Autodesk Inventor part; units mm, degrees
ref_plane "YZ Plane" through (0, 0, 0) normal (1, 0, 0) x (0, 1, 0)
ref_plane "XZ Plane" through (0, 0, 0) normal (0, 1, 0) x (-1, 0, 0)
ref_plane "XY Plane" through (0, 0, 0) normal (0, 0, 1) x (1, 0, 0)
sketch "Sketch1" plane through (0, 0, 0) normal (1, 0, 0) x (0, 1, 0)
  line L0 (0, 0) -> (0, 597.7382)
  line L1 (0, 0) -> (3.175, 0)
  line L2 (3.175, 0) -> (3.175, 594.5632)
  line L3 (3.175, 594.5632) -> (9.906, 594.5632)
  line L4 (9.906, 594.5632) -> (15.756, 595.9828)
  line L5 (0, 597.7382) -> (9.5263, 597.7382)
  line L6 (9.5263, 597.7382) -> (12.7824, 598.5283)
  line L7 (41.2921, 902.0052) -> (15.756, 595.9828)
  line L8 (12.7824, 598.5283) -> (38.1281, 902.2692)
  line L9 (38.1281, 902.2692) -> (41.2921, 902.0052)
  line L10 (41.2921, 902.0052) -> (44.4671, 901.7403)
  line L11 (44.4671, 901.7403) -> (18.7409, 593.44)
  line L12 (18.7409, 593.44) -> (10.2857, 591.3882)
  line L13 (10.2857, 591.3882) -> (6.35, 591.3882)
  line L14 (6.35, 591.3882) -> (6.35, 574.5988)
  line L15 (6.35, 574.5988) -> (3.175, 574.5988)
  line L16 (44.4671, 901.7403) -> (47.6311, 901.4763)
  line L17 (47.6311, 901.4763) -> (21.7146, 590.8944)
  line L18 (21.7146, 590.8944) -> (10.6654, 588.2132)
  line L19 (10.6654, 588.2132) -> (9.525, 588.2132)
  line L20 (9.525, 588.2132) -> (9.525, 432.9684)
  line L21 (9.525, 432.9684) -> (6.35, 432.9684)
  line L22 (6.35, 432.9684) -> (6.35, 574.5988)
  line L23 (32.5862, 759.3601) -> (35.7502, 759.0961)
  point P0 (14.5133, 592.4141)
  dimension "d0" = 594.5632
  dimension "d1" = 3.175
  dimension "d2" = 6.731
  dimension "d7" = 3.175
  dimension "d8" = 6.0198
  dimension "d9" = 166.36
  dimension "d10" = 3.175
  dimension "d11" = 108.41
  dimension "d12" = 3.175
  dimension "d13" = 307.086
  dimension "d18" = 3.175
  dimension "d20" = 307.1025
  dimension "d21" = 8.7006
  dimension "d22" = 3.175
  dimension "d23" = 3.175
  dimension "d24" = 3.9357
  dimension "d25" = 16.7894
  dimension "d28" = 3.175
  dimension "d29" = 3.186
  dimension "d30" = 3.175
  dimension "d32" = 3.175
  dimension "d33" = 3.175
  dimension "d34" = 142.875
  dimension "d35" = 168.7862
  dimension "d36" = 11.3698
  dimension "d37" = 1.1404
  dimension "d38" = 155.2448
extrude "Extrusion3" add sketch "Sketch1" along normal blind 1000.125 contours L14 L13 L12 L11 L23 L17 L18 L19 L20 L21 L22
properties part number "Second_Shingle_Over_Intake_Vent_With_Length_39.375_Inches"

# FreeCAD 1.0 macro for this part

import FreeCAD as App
import Part
import Sketcher

V = App.Vector
Q = App.Units.Quantity


def add_polygon(sketch, points):
    """Adds a closed chain of lines whose ends are joined by coincident constraints."""
    first, n = sketch.GeometryCount, len(points)
    for a, b in zip(points, points[1:] + points[:1]):
        sketch.addGeometry(Part.LineSegment(App.Vector(*a, 0), App.Vector(*b, 0)), False)
    for i in range(n):
        sketch.addConstraint(Sketcher.Constraint("Coincident", first + i, 2, first + (i + 1) % n, 1))

doc = App.newDocument("Part")
body = doc.addObject("PartDesign::Body", "Body")

sketch1 = body.newObject("Sketcher::SketchObject", "Sketch")
sketch1.AttachmentSupport = (doc.getObject("YZ_Plane"), [""])
sketch1.MapMode = "FlatFace"
add_polygon(sketch1, [(6.35, 591.3882), (6.35, 432.9684), (9.525, 432.9684), (9.525, 588.2132), (10.6654, 588.2132), (21.7146, 590.8944), (35.7502, 759.0961), (32.586147, 759.360104), (18.7409, 593.44), (10.2857, 591.3882)])
sketch1.addConstraint(Sketcher.Constraint("Vertical", 0))
sketch1.addConstraint(Sketcher.Constraint("Horizontal", 1))
sketch1.addConstraint(Sketcher.Constraint("Vertical", 2))
sketch1.addConstraint(Sketcher.Constraint("Horizontal", 3))
sketch1.addConstraint(Sketcher.Constraint("Horizontal", 9))
sketch1.addConstraint(Sketcher.Constraint("DistanceX", 1, 1, 1, 2, Q("0.125 in")))
sketch1.addConstraint(Sketcher.Constraint("DistanceY", 2, 1, 2, 2, Q("6.112 in")))
sketch1.addConstraint(Sketcher.Constraint("Distance", 6, Q("0.125 in")))
sketch1.addConstraint(Sketcher.Constraint("DistanceX", 3, 1, 3, 2, Q("0.0449 in")))
sketch1.addConstraint(Sketcher.Constraint("DistanceY", 3, 2, 8, 2, Q("0.125 in")))
sketch1.addConstraint(Sketcher.Constraint("DistanceX", 9, 2, 9, 1, Q("3.9357 mm")))
sketch1.addConstraint(Sketcher.Constraint("Distance", 4, Q("11.3699 mm")))
sketch1.addConstraint(Sketcher.Constraint("Distance", 5, Q("168.7863 mm")))
sketch1.addConstraint(Sketcher.Constraint("Distance", 8, Q("8.7006 mm")))
sketch1.addConstraint(Sketcher.Constraint("DistanceX", -1, 1, 0, 2, Q("0.25 in")))
sketch1.addConstraint(Sketcher.Constraint("Distance", 7, Q("6.555 in")))
sketch1.addConstraint(Sketcher.Constraint("DistanceY", -1, 1, 0, 2, Q("17.046 in")))
sketch1.addConstraint(Sketcher.Constraint("DistanceX", 3, 2, 4, 2, Q("0.435 in")))
sketch1.addConstraint(Sketcher.Constraint("DistanceX", 3, 2, 5, 2, Q("0.9876 in")))
sketch1.addConstraint(Sketcher.Constraint("DistanceY", 5, 2, 6, 2, Q("0.0104 in")))
pad1 = body.newObject("PartDesign::Pad", "Pad")
pad1.Profile = sketch1
pad1.Length = Q("39.375 in")

doc.recompute()
